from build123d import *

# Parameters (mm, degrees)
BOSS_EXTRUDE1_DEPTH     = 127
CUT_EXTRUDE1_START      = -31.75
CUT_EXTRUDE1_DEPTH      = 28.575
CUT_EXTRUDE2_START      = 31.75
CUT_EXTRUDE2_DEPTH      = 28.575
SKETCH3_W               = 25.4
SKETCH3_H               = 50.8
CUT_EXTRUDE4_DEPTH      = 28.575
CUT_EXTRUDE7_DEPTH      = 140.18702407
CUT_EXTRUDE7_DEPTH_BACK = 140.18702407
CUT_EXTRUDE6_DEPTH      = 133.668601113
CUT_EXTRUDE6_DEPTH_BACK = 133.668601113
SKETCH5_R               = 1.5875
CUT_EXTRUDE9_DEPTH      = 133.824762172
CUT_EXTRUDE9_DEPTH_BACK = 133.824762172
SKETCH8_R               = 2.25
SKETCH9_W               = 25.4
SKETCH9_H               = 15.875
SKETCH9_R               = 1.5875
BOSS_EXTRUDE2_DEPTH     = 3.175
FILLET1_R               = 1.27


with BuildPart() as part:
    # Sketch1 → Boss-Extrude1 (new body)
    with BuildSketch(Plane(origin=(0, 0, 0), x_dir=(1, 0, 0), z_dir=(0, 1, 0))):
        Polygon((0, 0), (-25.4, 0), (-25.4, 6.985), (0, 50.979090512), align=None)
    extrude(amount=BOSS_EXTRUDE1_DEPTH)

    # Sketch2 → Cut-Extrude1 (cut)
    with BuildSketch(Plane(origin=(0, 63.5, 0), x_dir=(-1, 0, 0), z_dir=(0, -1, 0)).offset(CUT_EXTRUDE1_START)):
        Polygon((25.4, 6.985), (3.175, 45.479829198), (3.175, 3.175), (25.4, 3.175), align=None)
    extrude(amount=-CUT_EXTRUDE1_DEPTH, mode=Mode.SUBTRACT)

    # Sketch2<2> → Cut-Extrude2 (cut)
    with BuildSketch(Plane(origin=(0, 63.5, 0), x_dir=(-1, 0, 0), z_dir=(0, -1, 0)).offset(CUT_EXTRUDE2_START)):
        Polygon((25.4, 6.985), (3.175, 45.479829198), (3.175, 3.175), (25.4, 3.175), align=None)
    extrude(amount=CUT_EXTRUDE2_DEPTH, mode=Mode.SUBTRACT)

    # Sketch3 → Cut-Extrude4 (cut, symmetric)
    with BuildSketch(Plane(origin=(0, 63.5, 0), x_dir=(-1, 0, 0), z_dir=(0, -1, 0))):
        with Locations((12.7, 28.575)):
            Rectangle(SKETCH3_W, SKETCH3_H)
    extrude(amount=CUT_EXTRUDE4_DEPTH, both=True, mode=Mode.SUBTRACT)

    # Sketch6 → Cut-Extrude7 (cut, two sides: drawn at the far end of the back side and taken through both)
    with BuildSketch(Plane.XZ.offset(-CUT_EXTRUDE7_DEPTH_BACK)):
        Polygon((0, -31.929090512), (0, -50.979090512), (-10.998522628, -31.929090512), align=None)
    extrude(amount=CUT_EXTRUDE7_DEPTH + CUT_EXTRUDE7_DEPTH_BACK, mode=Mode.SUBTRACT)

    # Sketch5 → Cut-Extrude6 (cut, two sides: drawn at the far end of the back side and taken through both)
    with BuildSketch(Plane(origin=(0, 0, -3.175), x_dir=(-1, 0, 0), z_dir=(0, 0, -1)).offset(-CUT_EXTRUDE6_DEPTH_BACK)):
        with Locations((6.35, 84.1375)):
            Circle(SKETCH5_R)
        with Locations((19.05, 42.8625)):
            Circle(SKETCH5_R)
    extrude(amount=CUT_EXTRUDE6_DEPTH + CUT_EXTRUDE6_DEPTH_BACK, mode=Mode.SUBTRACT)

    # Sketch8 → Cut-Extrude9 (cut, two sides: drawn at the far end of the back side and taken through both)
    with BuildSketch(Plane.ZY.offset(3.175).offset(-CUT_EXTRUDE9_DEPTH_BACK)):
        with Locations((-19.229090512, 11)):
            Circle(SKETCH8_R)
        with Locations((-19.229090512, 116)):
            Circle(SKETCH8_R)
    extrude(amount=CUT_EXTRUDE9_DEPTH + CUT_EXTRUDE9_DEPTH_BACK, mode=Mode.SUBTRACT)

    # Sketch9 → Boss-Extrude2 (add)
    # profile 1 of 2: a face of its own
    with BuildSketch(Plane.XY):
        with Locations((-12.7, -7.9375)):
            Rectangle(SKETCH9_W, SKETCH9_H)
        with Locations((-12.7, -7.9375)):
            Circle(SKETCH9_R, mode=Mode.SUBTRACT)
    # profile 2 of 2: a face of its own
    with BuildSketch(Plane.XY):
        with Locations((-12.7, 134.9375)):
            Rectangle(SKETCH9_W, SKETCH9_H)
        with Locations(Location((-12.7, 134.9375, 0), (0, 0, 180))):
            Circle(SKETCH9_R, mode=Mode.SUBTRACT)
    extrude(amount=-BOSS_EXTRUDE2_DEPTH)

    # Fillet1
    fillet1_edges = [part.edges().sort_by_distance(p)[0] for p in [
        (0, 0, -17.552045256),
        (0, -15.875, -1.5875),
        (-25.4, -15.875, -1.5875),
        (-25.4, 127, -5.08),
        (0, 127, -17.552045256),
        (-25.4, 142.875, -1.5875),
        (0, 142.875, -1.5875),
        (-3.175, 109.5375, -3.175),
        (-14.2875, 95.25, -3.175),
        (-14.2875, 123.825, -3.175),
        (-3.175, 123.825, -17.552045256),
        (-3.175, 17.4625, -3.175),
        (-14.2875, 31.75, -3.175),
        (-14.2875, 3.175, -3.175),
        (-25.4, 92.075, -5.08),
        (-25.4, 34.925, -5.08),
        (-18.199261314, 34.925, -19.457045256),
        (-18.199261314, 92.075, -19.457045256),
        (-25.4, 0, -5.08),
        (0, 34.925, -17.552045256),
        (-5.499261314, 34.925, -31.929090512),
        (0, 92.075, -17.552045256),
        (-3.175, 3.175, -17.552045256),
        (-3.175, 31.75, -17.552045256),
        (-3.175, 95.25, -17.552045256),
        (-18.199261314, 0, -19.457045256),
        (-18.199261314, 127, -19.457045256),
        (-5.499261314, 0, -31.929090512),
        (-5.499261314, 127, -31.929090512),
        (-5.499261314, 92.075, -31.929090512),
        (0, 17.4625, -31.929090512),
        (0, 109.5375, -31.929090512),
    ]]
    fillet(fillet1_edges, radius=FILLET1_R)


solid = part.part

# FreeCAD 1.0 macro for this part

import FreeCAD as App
import Part
import Sketcher

V = App.Vector
Q = App.Units.Quantity


def edges_at(feature, points):
    """Names of the edges that pass closest to the given points."""
    edges = feature.Shape.Edges
    near = lambda p: min(range(len(edges)), key=lambda i: edges[i].distToShape(Part.Vertex(*p))[0])
    return sorted({f"Edge{near(p) + 1}" for p in points})

doc = App.newDocument("Part")
params = doc.addObject("Spreadsheet::Sheet", "Params")
for row, (alias, value) in enumerate([
    ("sketch1_width", "1 in"),
    ("sketch1_length", "2 in"),
    ("sketch1_height", "0.275 in"),
    ("pad1_length", "5 in"),
    ("sketch2_height", "0.15 in"),
    ("sketch2_length", "1.75 in"),
    ("pocket1_length", "1.125 in"),
    ("sketch3_height", "0.15 in"),
    ("sketch3_length", "1.75 in"),
    ("pocket2_length", "1.125 in"),
    ("sketch4_width", "1 in"),
    ("sketch4_height", "2 in"),
    ("pocket3_length", "2.25 in"),
    ("sketch5_height", "0.75 in"),
    ("sketch6_diameter", "0.125 in"),
    ("sketch8_width", "1 in"),
    ("sketch8_diameter", "0.125 in"),
    ("sketch8_height", "0.625 in"),
    ("pad2_length", "0.125 in"),
    ("fillet_radius", "0.05 in"),
], start=1):
    params.set(f"A{row}", alias)
    params.set(f"B{row}", "=" + value)
    params.setAlias(f"B{row}", alias)

body = doc.addObject("PartDesign::Body", "Body")

# Sketch on XZ plane
sketch1 = doc.addObject("Sketcher::SketchObject", "Sketch")
body.addObject(sketch1)
sketch1.AttachmentSupport = (doc.XZ_Plane, [""])
sketch1.MapMode = "FlatFace"
sketch1.addGeometry([
    Part.LineSegment(V(-25.4, 0, 0), V(0, 0, 0)),
    Part.LineSegment(V(0, 0, 0), V(0, -50.979091, 0)),
    Part.LineSegment(V(0, -50.979091, 0), V(-25.4, -6.985, 0)),
    Part.LineSegment(V(-25.4, -6.985, 0), V(-25.4, 0, 0)),
], False)
sketch1.addConstraint([
    Sketcher.Constraint("Coincident", 0, 2, 1, 1),
    Sketcher.Constraint("Coincident", 1, 2, 2, 1),
    Sketcher.Constraint("Coincident", 2, 2, 3, 1),
    Sketcher.Constraint("Coincident", 3, 2, 0, 1),
    Sketcher.Constraint("Horizontal", 0),
    Sketcher.Constraint("Vertical", 1),
    Sketcher.Constraint("Vertical", 3),
    Sketcher.Constraint("Coincident", 0, 2, -1, 1),
    Sketcher.Constraint("DistanceX", 0, 1, 0, 2, Q("1 in")),
    Sketcher.Constraint("Distance", 2, Q("2 in")),
    Sketcher.Constraint("DistanceY", 3, 1, 3, 2, Q("0.275 in")),
])
sketch1.setExpression("Constraints[8]", "Params.sketch1_width")
sketch1.setExpression("Constraints[9]", "Params.sketch1_length")
sketch1.setExpression("Constraints[10]", "Params.sketch1_height")
pad1 = doc.addObject("PartDesign::Pad", "Pad")
body.addObject(pad1)
pad1.Profile = sketch1
pad1.setExpression("Length", "Params.pad1_length")
pad1.Reversed = True

# Sketch on XZ plane
sketch2 = doc.addObject("Sketcher::SketchObject", "Sketch001")
body.addObject(sketch2)
sketch2.AttachmentSupport = (doc.XZ_Plane, [""])
sketch2.MapMode = "FlatFace"
sketch2.AttachmentOffset = App.Placement(V(0, 0, -3.75 * 25.4), App.Rotation())
sketch2.addGeometry([
    Part.LineSegment(V(-25.4, -6.985, 0), V(-3.175, -45.479829, 0)),
    Part.LineSegment(V(-3.175, -45.479829, 0), V(-3.175, -3.175, 0)),
    Part.LineSegment(V(-3.175, -3.175, 0), V(-25.4, -3.175, 0)),
    Part.LineSegment(V(-25.4, -3.175, 0), V(-25.4, -6.985, 0)),
], False)
sketch2.addConstraint([
    Sketcher.Constraint("Coincident", 0, 2, 1, 1),
    Sketcher.Constraint("Coincident", 1, 2, 2, 1),
    Sketcher.Constraint("Coincident", 2, 2, 3, 1),
    Sketcher.Constraint("Coincident", 3, 2, 0, 1),
    Sketcher.Constraint("Vertical", 1),
    Sketcher.Constraint("Horizontal", 2),
    Sketcher.Constraint("Vertical", 3),
    Sketcher.Constraint("DistanceX", 2, 2, -1, 1, Q("1 in")),
    Sketcher.Constraint("Angle", 0, Q("-60 deg")),
    Sketcher.Constraint("DistanceY", 3, 2, 3, 1, Q("0.15 in")),
    Sketcher.Constraint("Distance", 0, Q("1.75 in")),
    Sketcher.Constraint("DistanceY", 1, 2, -1, 1, Q("0.125 in")),
])
sketch2.setExpression("Constraints[9]", "Params.sketch2_height")
sketch2.setExpression("Constraints[10]", "Params.sketch2_length")
pocket1 = doc.addObject("PartDesign::Pocket", "Pocket")
body.addObject(pocket1)
pocket1.Profile = sketch2
pocket1.setExpression("Length", "Params.pocket1_length")

# Sketch on XZ plane
sketch3 = doc.addObject("Sketcher::SketchObject", "Sketch002")
body.addObject(sketch3)
sketch3.AttachmentSupport = (doc.XZ_Plane, [""])
sketch3.MapMode = "FlatFace"
sketch3.AttachmentOffset = App.Placement(V(0, 0, -1.25 * 25.4), App.Rotation())
sketch3.addGeometry([
    Part.LineSegment(V(-25.4, -6.985, 0), V(-3.175, -45.479829, 0)),
    Part.LineSegment(V(-3.175, -45.479829, 0), V(-3.175, -3.175, 0)),
    Part.LineSegment(V(-3.175, -3.175, 0), V(-25.4, -3.175, 0)),
    Part.LineSegment(V(-25.4, -3.175, 0), V(-25.4, -6.985, 0)),
], False)
sketch3.addConstraint([
    Sketcher.Constraint("Coincident", 0, 2, 1, 1),
    Sketcher.Constraint("Coincident", 1, 2, 2, 1),
    Sketcher.Constraint("Coincident", 2, 2, 3, 1),
    Sketcher.Constraint("Coincident", 3, 2, 0, 1),
    Sketcher.Constraint("Vertical", 1),
    Sketcher.Constraint("Horizontal", 2),
    Sketcher.Constraint("Vertical", 3),
    Sketcher.Constraint("DistanceX", 2, 2, -1, 1, Q("1 in")),
    Sketcher.Constraint("Angle", 0, Q("-60 deg")),
    Sketcher.Constraint("DistanceY", 3, 2, 3, 1, Q("0.15 in")),
    Sketcher.Constraint("Distance", 0, Q("1.75 in")),
    Sketcher.Constraint("DistanceY", 1, 2, -1, 1, Q("0.125 in")),
])
sketch3.setExpression("Constraints[9]", "Params.sketch3_height")
sketch3.setExpression("Constraints[10]", "Params.sketch3_length")
pocket2 = doc.addObject("PartDesign::Pocket", "Pocket001")
body.addObject(pocket2)
pocket2.Profile = sketch3
pocket2.setExpression("Length", "Params.pocket2_length")
pocket2.Reversed = True

# Sketch on XZ plane
sketch4 = doc.addObject("Sketcher::SketchObject", "Sketch003")
body.addObject(sketch4)
sketch4.AttachmentSupport = (doc.XZ_Plane, [""])
sketch4.MapMode = "FlatFace"
sketch4.AttachmentOffset = App.Placement(V(0, 0, -2.5 * 25.4), App.Rotation())
sketch4.addGeometry([
    Part.LineSegment(V(0, -53.975, 0), V(0, -3.175, 0)),
    Part.LineSegment(V(0, -3.175, 0), V(-25.4, -3.175, 0)),
    Part.LineSegment(V(-25.4, -3.175, 0), V(-25.4, -53.975, 0)),
    Part.LineSegment(V(-25.4, -53.975, 0), V(0, -53.975, 0)),
], False)
sketch4.addConstraint([
    Sketcher.Constraint("Coincident", 0, 2, 1, 1),
    Sketcher.Constraint("Coincident", 1, 2, 2, 1),
    Sketcher.Constraint("Coincident", 2, 2, 3, 1),
    Sketcher.Constraint("Coincident", 3, 2, 0, 1),
    Sketcher.Constraint("Vertical", 0),
    Sketcher.Constraint("Horizontal", 1),
    Sketcher.Constraint("Vertical", 2),
    Sketcher.Constraint("Horizontal", 3),
    Sketcher.Constraint("PointOnObject", 0, 2, -2),
    Sketcher.Constraint("DistanceX", 1, 2, 1, 1, Q("1 in")),
    Sketcher.Constraint("DistanceY", 0, 1, 0, 2, Q("2 in")),
    Sketcher.Constraint("DistanceY", 0, 2, -1, 1, Q("0.125 in")),
])
sketch4.setExpression("Constraints[9]", "Params.sketch4_width")
sketch4.setExpression("Constraints[10]", "Params.sketch4_height")
pocket3 = doc.addObject("PartDesign::Pocket", "Pocket002")
body.addObject(pocket3)
pocket3.Profile = sketch4
pocket3.setExpression("Length", "Params.pocket3_length")
pocket3.Midplane = True

# Sketch on XZ plane
sketch5 = doc.addObject("Sketcher::SketchObject", "Sketch004")
body.addObject(sketch5)
sketch5.AttachmentSupport = (doc.XZ_Plane, [""])
sketch5.MapMode = "FlatFace"
sketch5.addGeometry([
    Part.LineSegment(V(0, -50.979091, 0), V(0, -31.929091, 0)),
    Part.LineSegment(V(0, -31.929091, 0), V(-10.998523, -31.929091, 0)),
    Part.LineSegment(V(-10.998523, -31.929091, 0), V(0, -50.979091, 0)),
], False)
sketch5.addConstraint([
    Sketcher.Constraint("Coincident", 0, 2, 1, 1),
    Sketcher.Constraint("Coincident", 1, 2, 2, 1),
    Sketcher.Constraint("Coincident", 2, 2, 0, 1),
    Sketcher.Constraint("Vertical", 0),
    Sketcher.Constraint("Horizontal", 1),
    Sketcher.Constraint("PointOnObject", 0, 2, -2),
    Sketcher.Constraint("Angle", 2, Q("-60 deg")),
    Sketcher.Constraint("DistanceY", 0, 1, 0, 2, Q("0.75 in")),
    Sketcher.Constraint("DistanceY", 0, 2, -1, 1, Q("31.929091 mm")),
])
sketch5.setExpression("Constraints[7]", "Params.sketch5_height")
pocket4 = doc.addObject("PartDesign::Pocket", "Pocket003")
body.addObject(pocket4)
pocket4.Profile = sketch5
pocket4.Type = "ThroughAll"
pocket4.Midplane = True

# Sketch on XY plane
sketch6 = doc.addObject("Sketcher::SketchObject", "Sketch005")
body.addObject(sketch6)
sketch6.AttachmentSupport = (doc.XY_Plane, [""])
sketch6.MapMode = "FlatFace"
sketch6.AttachmentOffset = App.Placement(V(0, 0, -0.125 * 25.4), App.Rotation())
sketch6.addGeometry([
    Part.Circle(V(-6.35, 84.1375, 0), V(0, 0, 1), 1.5875),
    Part.Circle(V(-19.05, 42.8625, 0), V(0, 0, 1), 1.5875),
], False)
sketch6.addConstraint([
    Sketcher.Constraint("Equal", 0, 1),
    Sketcher.Constraint("Diameter", 0, Q("0.125 in")),
    Sketcher.Constraint("DistanceX", 1, 3, 0, 3, Q("0.5 in")),
    Sketcher.Constraint("DistanceX", 0, 3, -1, 1, Q("0.25 in")),
    Sketcher.Constraint("DistanceY", -1, 1, 0, 3, Q("3.3125 in")),
    Sketcher.Constraint("DistanceY", -1, 1, 1, 3, Q("1.6875 in")),
])
sketch6.setExpression("Constraints[1]", "Params.sketch6_diameter")
pocket5 = doc.addObject("PartDesign::Pocket", "Pocket004")
body.addObject(pocket5)
pocket5.Profile = sketch6
pocket5.Type = "ThroughAll"
pocket5.Midplane = True

# Sketch on YZ plane
sketch7 = doc.addObject("Sketcher::SketchObject", "Sketch006")
body.addObject(sketch7)
sketch7.AttachmentSupport = (doc.YZ_Plane, [""])
sketch7.MapMode = "FlatFace"
sketch7.AttachmentOffset = App.Placement(V(0, 0, -0.125 * 25.4), App.Rotation())
sketch7.addGeometry([
    Part.Circle(V(11, -19.229091, 0), V(0, 0, 1), 2.25),
    Part.Circle(V(116, -19.229091, 0), V(0, 0, 1), 2.25),
], False)
sketch7.addConstraint([
    Sketcher.Constraint("Equal", 0, 1),
    Sketcher.Constraint("Horizontal", 0, 3, 1, 3),
    Sketcher.Constraint("Diameter", 0, Q("4.5 mm")),
    Sketcher.Constraint("DistanceX", -1, 1, 0, 3, Q("11 mm")),
    Sketcher.Constraint("DistanceX", -1, 1, 1, 3, Q("116 mm")),
    Sketcher.Constraint("DistanceY", 0, 3, -1, 1, Q("19.229091 mm")),
])
pocket6 = doc.addObject("PartDesign::Pocket", "Pocket005")
body.addObject(pocket6)
pocket6.Profile = sketch7
pocket6.Type = "ThroughAll"
pocket6.Midplane = True

# Sketch on XY plane
sketch8 = doc.addObject("Sketcher::SketchObject", "Sketch007")
body.addObject(sketch8)
sketch8.AttachmentSupport = (doc.XY_Plane, [""])
sketch8.MapMode = "FlatFace"
sketch8.addGeometry([
    Part.LineSegment(V(-25.4, 0, 0), V(-25.4, -15.875, 0)),  # 0
    Part.LineSegment(V(-25.4, -15.875, 0), V(0, -15.875, 0)),  # 1
    Part.LineSegment(V(0, -15.875, 0), V(0, 0, 0)),  # 2
    Part.LineSegment(V(0, 0, 0), V(-25.4, 0, 0)),  # 3
    Part.Circle(V(-12.7, -7.9375, 0), V(0, 0, 1), 1.5875),  # 4
    Part.LineSegment(V(-25.4, 142.875, 0), V(-25.4, 127, 0)),  # 5
    Part.LineSegment(V(-25.4, 127, 0), V(0, 127, 0)),  # 6
    Part.LineSegment(V(0, 127, 0), V(0, 142.875, 0)),  # 7
    Part.LineSegment(V(0, 142.875, 0), V(-25.4, 142.875, 0)),  # 8
    Part.Circle(V(-12.7, 134.9375, 0), V(0, 0, 1), 1.5875),  # 9
], False)
sketch8.addConstraint([
    Sketcher.Constraint("Coincident", 0, 2, 1, 1),
    Sketcher.Constraint("Coincident", 1, 2, 2, 1),
    Sketcher.Constraint("Coincident", 2, 2, 3, 1),
    Sketcher.Constraint("Coincident", 3, 2, 0, 1),
    Sketcher.Constraint("Coincident", 5, 2, 6, 1),
    Sketcher.Constraint("Coincident", 6, 2, 7, 1),
    Sketcher.Constraint("Coincident", 7, 2, 8, 1),
    Sketcher.Constraint("Coincident", 8, 2, 5, 1),
    Sketcher.Constraint("Vertical", 0),
    Sketcher.Constraint("Horizontal", 1),
    Sketcher.Constraint("Vertical", 2),
    Sketcher.Constraint("Horizontal", 3),
    Sketcher.Constraint("Vertical", 5),
    Sketcher.Constraint("Horizontal", 6),
    Sketcher.Constraint("Vertical", 7),
    Sketcher.Constraint("Horizontal", 8),
    Sketcher.Constraint("Coincident", 2, 2, -1, 1),
    Sketcher.Constraint("Equal", 4, 9),
    Sketcher.Constraint("PointOnObject", 6, 2, -2),
    Sketcher.Constraint("Vertical", 4, 3, 9, 3),
    Sketcher.Constraint("Vertical", 3, 2, 5, 2),
    Sketcher.Constraint("Equal", 2, 5),
    Sketcher.Constraint("DistanceX", 1, 1, 1, 2, Q("1 in")),
    Sketcher.Constraint("Diameter", 4, Q("0.125 in")),
    Sketcher.Constraint("DistanceY", -1, 1, 5, 2, Q("5 in")),
    Sketcher.Constraint("DistanceX", 4, 3, -1, 1, Q("0.5 in")),
    Sketcher.Constraint("DistanceY", 0, 2, 0, 1, Q("0.625 in")),
    Sketcher.Constraint("DistanceY", 4, 3, -1, 1, Q("0.3125 in")),
    Sketcher.Constraint("DistanceY", -1, 1, 9, 3, Q("5.3125 in")),
])
sketch8.setExpression("Constraints[22]", "Params.sketch8_width")
sketch8.setExpression("Constraints[23]", "Params.sketch8_diameter")
sketch8.setExpression("Constraints[26]", "Params.sketch8_height")
pad2 = doc.addObject("PartDesign::Pad", "Pad001")
body.addObject(pad2)
pad2.Profile = sketch8
pad2.setExpression("Length", "Params.pad2_length")
pad2.Reversed = True
doc.recompute()

fillet = doc.addObject("PartDesign::Fillet", "Fillet")
body.addObject(fillet)
fillet.Base = (pad2, edges_at(pad2, [
    (0, 0, -17.552),
    (0, -15.875, -1.587),
    (-25.4, -15.875, -1.587),
    (-25.4, 127, -5.08),
    (0, 127, -17.552),
    (-25.4, 142.875, -1.587),
    (0, 142.875, -1.587),
    (-3.175, 109.537, -3.175),
    (-14.287, 95.25, -3.175),
    (-14.287, 123.825, -3.175),
    (-3.175, 123.825, -17.552),
    (-3.175, 17.462, -3.175),
    (-14.287, 31.75, -3.175),
    (-14.287, 3.175, -3.175),
    (-25.4, 92.075, -5.08),
    (-25.4, 34.925, -5.08),
    (-18.199, 34.925, -19.457),
    (-18.199, 92.075, -19.457),
    (-25.4, 0, -5.08),
    (0, 34.925, -17.552),
    (-5.499, 34.925, -31.929),
    (0, 92.075, -17.552),
    (-3.175, 3.175, -17.552),
    (-3.175, 31.75, -17.552),
    (-3.175, 95.25, -17.552),
    (-18.199, 0, -19.457),
    (-18.199, 127, -19.457),
    (-5.499, 0, -31.929),
    (-5.499, 127, -31.929),
    (-5.499, 92.075, -31.929),
    (0, 17.462, -31.929),
    (0, 109.537, -31.929),
]))
fillet.setExpression("Radius", "Params.fillet_radius")

doc.recompute()
